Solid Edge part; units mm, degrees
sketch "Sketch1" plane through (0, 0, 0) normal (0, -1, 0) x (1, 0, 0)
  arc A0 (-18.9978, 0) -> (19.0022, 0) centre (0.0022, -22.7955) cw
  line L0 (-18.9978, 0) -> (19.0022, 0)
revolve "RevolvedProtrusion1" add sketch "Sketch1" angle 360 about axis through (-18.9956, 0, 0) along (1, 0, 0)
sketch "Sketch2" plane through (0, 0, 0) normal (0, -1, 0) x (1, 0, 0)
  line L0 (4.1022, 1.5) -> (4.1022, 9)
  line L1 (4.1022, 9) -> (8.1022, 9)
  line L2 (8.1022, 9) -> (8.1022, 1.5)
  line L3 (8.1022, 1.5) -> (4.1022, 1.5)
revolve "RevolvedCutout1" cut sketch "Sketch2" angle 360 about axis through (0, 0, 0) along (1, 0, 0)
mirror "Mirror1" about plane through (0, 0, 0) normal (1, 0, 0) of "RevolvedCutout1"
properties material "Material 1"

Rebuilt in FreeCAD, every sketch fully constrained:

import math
import FreeCAD as App
import Part
import Sketcher
from FreeCAD import Vector


def add_polygon(sketch, points):
    """Adds a closed chain of lines whose ends are joined by coincident constraints."""
    first, n = sketch.GeometryCount, len(points)
    for a, b in zip(points, points[1:] + points[:1]):
        sketch.addGeometry(Part.LineSegment(App.Vector(*a, 0), App.Vector(*b, 0)), False)
    for i in range(n):
        sketch.addConstraint(Sketcher.Constraint("Coincident", first + i, 2, first + (i + 1) % n, 1))

doc = App.newDocument("Part")
body = doc.addObject("PartDesign::Body", "Body")

# Sketch on XZ plane
sketch1 = body.newObject("Sketcher::SketchObject", "Sketch")
sketch1.AttachmentSupport = (doc.getObject("XZ_Plane"), [""])
sketch1.MapMode = "FlatFace"
sketch1.addGeometry([
    Part.ArcOfCircle(Part.Circle(Vector(0, -23, 0), Vector(0, 0, 1), 30), math.radians(50), math.radians(130)),
    Part.LineSegment(Vector(-19, 0, 0), Vector(19, 0, 0)),
], False)
sketch1.addConstraint([
    Sketcher.Constraint("Coincident", 0, 1, 1, 2),
    Sketcher.Constraint("Coincident", 1, 1, 0, 2),
    Sketcher.Constraint("Horizontal", 1),
    Sketcher.Constraint("PointOnObject", 0, 1, -1),
    Sketcher.Constraint("DistanceX", 1, 1, 1, 2, 38.0),
    Sketcher.Constraint("Radius", 0, 29.6755),
    Sketcher.Constraint("DistanceX", -1, 1, 0, 3, 0.0022),
])
revolution = body.newObject("PartDesign::Revolution", "Revolution")
revolution.Profile = sketch1
revolution.ReferenceAxis = (sketch1, ["H_Axis"])
revolution.Angle = 360

# Sketch on XZ plane
sketch2 = body.newObject("Sketcher::SketchObject", "Sketch001")
sketch2.AttachmentSupport = (doc.getObject("XZ_Plane"), [""])
sketch2.MapMode = "FlatFace"
add_polygon(sketch2, [(4.1, 9), (4.1, 1.5), (8.1, 1.5), (8.1, 9)])  # lines 0-3
sketch2.addConstraint([
    Sketcher.Constraint("Vertical", 0),
    Sketcher.Constraint("Horizontal", 1),
    Sketcher.Constraint("Vertical", 2),
    Sketcher.Constraint("Horizontal", 3),
    Sketcher.Constraint("DistanceX", 1, 1, 1, 2, 4.0),
    Sketcher.Constraint("DistanceY", 0, 2, 0, 1, 7.5),
    Sketcher.Constraint("DistanceY", -1, 1, 2, 2, 9.0),
    Sketcher.Constraint("DistanceX", -1, 1, 0, 2, 4.1022),
])
groove = body.newObject("PartDesign::Groove", "Groove")
groove.Profile = sketch2
groove.ReferenceAxis = (sketch2, ["H_Axis"])
groove.Angle = 360
doc.recompute()

mirrored = body.newObject("PartDesign::Mirrored", "Mirrored")
mirrored.Originals = [groove]
mirrored.MirrorPlane = (doc.getObject("YZ_Plane"), [""])
body.Tip = mirrored

doc.recompute()
